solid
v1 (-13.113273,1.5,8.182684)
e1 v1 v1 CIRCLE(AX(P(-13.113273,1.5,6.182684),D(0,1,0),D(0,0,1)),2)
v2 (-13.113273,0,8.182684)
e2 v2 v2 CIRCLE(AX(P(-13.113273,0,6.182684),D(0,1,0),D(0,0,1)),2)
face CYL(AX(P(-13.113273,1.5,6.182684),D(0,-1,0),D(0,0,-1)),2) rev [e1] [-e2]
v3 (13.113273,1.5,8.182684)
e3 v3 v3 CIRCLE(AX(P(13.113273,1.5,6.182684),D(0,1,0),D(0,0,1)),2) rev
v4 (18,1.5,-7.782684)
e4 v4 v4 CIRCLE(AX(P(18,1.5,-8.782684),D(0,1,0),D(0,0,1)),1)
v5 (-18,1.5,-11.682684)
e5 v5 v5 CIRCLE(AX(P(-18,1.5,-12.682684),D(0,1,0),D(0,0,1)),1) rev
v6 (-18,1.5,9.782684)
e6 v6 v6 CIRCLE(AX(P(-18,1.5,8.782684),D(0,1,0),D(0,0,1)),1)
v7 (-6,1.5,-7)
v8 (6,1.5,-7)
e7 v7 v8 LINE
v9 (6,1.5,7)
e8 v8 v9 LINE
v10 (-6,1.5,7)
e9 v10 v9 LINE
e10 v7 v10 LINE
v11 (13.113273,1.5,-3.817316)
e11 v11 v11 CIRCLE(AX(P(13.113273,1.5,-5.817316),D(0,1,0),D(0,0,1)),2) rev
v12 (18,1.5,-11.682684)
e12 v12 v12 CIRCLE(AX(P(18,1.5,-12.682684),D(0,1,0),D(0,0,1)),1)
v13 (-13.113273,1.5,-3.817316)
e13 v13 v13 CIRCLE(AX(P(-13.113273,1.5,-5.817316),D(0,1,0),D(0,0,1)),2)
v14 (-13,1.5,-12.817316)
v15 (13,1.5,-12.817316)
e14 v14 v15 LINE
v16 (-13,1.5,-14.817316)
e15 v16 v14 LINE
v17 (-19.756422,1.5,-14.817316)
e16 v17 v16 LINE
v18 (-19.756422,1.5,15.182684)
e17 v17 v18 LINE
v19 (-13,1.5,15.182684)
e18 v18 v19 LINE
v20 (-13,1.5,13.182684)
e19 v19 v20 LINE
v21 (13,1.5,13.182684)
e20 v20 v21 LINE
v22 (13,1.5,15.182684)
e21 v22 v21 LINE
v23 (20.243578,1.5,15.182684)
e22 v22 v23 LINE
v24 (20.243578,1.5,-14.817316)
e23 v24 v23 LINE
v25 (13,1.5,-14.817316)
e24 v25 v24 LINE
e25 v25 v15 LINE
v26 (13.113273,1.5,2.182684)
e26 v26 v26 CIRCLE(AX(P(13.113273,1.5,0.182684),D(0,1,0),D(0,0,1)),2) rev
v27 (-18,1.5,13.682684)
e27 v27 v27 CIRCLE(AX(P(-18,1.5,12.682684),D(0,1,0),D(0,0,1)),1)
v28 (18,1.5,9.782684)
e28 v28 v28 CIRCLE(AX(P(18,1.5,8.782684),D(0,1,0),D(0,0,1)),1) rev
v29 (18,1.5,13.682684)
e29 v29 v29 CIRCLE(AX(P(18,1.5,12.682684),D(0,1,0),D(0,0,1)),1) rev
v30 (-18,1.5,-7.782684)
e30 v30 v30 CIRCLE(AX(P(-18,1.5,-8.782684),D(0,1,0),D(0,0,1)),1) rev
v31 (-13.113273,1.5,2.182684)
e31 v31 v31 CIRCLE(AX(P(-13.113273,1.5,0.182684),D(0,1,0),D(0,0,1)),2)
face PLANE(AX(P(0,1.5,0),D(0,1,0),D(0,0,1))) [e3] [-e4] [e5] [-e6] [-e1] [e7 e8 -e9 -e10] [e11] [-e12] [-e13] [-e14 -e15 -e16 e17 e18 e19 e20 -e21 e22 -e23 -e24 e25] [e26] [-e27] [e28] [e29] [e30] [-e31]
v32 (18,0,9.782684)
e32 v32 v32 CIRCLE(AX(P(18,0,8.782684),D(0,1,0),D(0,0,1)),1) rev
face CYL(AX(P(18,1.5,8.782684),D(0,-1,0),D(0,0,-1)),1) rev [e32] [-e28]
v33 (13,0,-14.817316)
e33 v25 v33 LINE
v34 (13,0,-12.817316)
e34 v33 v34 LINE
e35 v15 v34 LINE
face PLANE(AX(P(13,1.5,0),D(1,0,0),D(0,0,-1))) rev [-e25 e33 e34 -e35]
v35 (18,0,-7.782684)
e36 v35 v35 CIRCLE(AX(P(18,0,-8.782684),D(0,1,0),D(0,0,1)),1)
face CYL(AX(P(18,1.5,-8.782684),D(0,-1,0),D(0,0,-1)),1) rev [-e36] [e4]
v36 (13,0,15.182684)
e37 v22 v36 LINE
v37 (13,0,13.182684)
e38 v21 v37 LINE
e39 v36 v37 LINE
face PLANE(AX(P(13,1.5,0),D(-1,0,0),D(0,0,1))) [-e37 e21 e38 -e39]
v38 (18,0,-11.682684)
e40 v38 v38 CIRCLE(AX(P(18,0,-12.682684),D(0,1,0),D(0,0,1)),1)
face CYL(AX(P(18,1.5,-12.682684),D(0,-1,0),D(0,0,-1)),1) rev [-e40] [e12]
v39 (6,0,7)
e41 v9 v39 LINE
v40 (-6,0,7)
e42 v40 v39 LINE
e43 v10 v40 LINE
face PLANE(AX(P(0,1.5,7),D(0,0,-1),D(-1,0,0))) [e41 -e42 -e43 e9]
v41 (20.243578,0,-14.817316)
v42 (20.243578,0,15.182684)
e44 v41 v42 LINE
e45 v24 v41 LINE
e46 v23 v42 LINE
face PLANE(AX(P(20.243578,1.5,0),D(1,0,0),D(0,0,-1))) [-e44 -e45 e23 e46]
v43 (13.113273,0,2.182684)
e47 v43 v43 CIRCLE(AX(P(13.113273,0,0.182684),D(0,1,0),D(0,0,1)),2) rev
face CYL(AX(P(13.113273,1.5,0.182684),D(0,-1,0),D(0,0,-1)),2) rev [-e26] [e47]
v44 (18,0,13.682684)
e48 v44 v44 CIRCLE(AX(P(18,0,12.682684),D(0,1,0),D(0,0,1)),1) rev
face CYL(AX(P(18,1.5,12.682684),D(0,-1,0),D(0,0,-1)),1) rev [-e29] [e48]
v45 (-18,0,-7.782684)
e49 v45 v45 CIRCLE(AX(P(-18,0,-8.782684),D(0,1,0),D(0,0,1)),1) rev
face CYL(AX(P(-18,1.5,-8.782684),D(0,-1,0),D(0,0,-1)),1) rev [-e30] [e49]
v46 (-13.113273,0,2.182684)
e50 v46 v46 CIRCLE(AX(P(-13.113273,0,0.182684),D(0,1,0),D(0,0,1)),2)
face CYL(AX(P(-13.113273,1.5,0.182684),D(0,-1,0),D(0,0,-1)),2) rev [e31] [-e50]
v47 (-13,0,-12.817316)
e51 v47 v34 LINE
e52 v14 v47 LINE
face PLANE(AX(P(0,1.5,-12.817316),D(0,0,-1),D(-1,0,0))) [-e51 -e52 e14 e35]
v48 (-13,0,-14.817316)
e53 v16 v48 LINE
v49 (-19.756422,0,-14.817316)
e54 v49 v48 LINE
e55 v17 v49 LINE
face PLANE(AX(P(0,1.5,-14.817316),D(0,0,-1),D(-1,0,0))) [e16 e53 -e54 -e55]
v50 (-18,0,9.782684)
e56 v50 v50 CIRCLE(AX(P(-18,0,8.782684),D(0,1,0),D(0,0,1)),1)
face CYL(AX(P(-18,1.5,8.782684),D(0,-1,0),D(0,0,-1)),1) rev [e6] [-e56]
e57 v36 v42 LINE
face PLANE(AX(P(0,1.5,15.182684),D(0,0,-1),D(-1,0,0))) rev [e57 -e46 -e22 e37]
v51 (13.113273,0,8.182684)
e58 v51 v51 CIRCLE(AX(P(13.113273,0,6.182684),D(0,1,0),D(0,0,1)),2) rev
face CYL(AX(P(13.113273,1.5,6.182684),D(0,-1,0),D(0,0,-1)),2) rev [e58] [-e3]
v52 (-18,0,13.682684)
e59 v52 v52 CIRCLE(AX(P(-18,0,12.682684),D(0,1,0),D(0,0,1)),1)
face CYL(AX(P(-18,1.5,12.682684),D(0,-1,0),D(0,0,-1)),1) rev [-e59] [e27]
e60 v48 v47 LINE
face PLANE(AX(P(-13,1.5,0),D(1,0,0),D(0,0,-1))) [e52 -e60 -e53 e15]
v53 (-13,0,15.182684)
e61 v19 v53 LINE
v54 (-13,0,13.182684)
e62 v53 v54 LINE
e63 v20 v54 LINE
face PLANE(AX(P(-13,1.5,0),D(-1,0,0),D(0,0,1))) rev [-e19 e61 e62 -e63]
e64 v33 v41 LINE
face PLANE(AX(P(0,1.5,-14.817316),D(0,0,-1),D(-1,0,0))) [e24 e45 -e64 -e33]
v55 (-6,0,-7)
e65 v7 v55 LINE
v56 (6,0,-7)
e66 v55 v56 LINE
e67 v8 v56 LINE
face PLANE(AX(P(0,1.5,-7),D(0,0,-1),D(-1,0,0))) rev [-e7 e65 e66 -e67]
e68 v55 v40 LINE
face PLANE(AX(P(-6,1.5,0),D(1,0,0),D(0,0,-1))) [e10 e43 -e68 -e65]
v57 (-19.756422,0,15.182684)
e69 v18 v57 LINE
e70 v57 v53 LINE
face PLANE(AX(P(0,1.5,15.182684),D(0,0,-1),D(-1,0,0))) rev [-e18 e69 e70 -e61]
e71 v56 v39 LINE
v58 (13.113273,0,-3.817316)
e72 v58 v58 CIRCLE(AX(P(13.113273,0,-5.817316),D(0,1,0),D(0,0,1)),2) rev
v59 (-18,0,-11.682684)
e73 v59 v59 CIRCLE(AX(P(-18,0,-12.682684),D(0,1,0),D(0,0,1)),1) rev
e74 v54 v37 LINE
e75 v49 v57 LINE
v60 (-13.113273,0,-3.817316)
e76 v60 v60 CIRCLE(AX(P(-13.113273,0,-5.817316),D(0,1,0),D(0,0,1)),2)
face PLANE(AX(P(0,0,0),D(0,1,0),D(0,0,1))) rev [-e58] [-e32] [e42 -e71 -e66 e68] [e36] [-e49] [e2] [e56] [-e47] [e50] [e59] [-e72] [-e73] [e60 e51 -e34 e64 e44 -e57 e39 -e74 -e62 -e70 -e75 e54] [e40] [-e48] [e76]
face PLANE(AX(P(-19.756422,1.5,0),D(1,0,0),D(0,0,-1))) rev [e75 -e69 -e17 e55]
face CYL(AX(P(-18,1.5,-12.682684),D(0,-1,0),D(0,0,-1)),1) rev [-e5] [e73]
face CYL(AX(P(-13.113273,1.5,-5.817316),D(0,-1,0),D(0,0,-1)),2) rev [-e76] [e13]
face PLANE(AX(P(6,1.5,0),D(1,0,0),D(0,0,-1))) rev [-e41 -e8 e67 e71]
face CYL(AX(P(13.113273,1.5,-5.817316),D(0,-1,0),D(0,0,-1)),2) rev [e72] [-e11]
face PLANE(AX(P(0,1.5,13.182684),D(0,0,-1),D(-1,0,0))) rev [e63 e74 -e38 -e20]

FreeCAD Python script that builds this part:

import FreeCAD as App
import Part
import Sketcher

V = App.Vector
Q = App.Units.Quantity


def add_polygon(sketch, points):
    """Adds a closed chain of lines whose ends are joined by coincident constraints."""
    first, n = sketch.GeometryCount, len(points)
    for a, b in zip(points, points[1:] + points[:1]):
        sketch.addGeometry(Part.LineSegment(App.Vector(*a, 0), App.Vector(*b, 0)), False)
    for i in range(n):
        sketch.addConstraint(Sketcher.Constraint("Coincident", first + i, 2, first + (i + 1) % n, 1))

doc = App.newDocument("Part")
body = doc.addObject("PartDesign::Body", "Body")

# Sketch on XZ plane
sketch1 = body.newObject("Sketcher::SketchObject", "Sketch")
sketch1.AttachmentSupport = (doc.getObject("XZ_Plane"), [""])
sketch1.MapMode = "FlatFace"
add_polygon(sketch1, [(-13, -14.8), (-19.8, -14.8), (-19.8, 15.2), (-13, 15.2), (-13, 13.2), (13, 13.2), (13, 15.2), (20.2, 15.2), (20.2, -14.8), (13, -14.8), (13, -12.8), (-13, -12.8)])  # lines 0-11
sketch1.addGeometry(Part.Circle(V(-18, 12.7, 0), V(0, 0, 1), 1), False)  # 12
sketch1.addGeometry(Part.Circle(V(-18, 8.8, 0), V(0, 0, 1), 1), False)  # 13
sketch1.addGeometry(Part.Circle(V(-13.1, 6.2, 0), V(0, 0, 1), 2), False)  # 14
sketch1.addGeometry(Part.Circle(V(-13.1, 0.2, 0), V(0, 0, 1), 2), False)  # 15
sketch1.addGeometry(Part.Circle(V(18, 12.7, 0), V(0, 0, 1), 1), False)  # 16
sketch1.addGeometry(Part.Circle(V(18, 8.8, 0), V(0, 0, 1), 1), False)  # 17
sketch1.addGeometry(Part.Circle(V(13.1, 6.2, 0), V(0, 0, 1), 2), False)  # 18
sketch1.addGeometry(Part.Circle(V(13.1, 0.2, 0), V(0, 0, 1), 2), False)  # 19
sketch1.addGeometry(Part.Circle(V(-13.1, -5.8, 0), V(0, 0, 1), 2), False)  # 20
sketch1.addGeometry(Part.Circle(V(-18, -8.8, 0), V(0, 0, 1), 1), False)  # 21
sketch1.addGeometry(Part.Circle(V(-18, -12.7, 0), V(0, 0, 1), 1), False)  # 22
add_polygon(sketch1, [(6, 7), (-6, 7), (-6, -7), (6, -7)])  # lines 23-26
sketch1.addGeometry(Part.Circle(V(13.1, -5.8, 0), V(0, 0, 1), 2), False)  # 27
sketch1.addGeometry(Part.Circle(V(18, -8.8, 0), V(0, 0, 1), 1), False)  # 28
sketch1.addGeometry(Part.Circle(V(18, -12.7, 0), V(0, 0, 1), 1), False)  # 29
sketch1.addConstraint([
    Sketcher.Constraint("Horizontal", 0),
    Sketcher.Constraint("Vertical", 1),
    Sketcher.Constraint("Horizontal", 2),
    Sketcher.Constraint("Vertical", 3),
    Sketcher.Constraint("Horizontal", 4),
    Sketcher.Constraint("Vertical", 5),
    Sketcher.Constraint("Horizontal", 6),
    Sketcher.Constraint("Vertical", 7),
    Sketcher.Constraint("Horizontal", 8),
    Sketcher.Constraint("Vertical", 9),
    Sketcher.Constraint("Horizontal", 10),
    Sketcher.Constraint("Vertical", 11),
    Sketcher.Constraint("Horizontal", 23),
    Sketcher.Constraint("Vertical", 24),
    Sketcher.Constraint("Horizontal", 25),
    Sketcher.Constraint("Vertical", 26),
    Sketcher.Constraint("Equal", 12, 13),
    Sketcher.Constraint("Equal", 14, 15),
    Sketcher.Constraint("Equal", 13, 16),
    Sketcher.Constraint("Equal", 16, 17),
    Sketcher.Constraint("Equal", 15, 18),
    Sketcher.Constraint("Equal", 18, 19),
    Sketcher.Constraint("Equal", 19, 20),
    Sketcher.Constraint("Equal", 17, 21),
    Sketcher.Constraint("Equal", 21, 22),
    Sketcher.Constraint("Equal", 20, 27),
    Sketcher.Constraint("Equal", 22, 28),
    Sketcher.Constraint("Equal", 28, 29),
    Sketcher.Constraint("Symmetric", 17, 3, 21, 3, -1, 1),
    Sketcher.Constraint("Symmetric", 16, 3, 22, 3, -1, 1),
    Sketcher.Constraint("Symmetric", 13, 3, 28, 3, -1, 1),
    Sketcher.Constraint("Symmetric", 12, 3, 29, 3, -1, 1),
    Sketcher.Constraint("Symmetric", 23, 2, 25, 2, -1, 1),
    Sketcher.Constraint("Symmetric", 12, 3, 16, 3, -2),
    Sketcher.Constraint("Symmetric", 13, 3, 17, 3, -2),
    Sketcher.Constraint("Symmetric", 14, 3, 18, 3, -2),
    Sketcher.Constraint("Symmetric", 15, 3, 19, 3, -2),
    Sketcher.Constraint("Symmetric", 20, 3, 27, 3, -2),
    Sketcher.Constraint("Symmetric", 2, 2, 5, 2, -2),
    Sketcher.Constraint("Symmetric", 8, 2, 11, 2, -2),
    Sketcher.Constraint("Vertical", 12, 3, 13, 3),
    Sketcher.Constraint("Vertical", 14, 3, 15, 3),
    Sketcher.Constraint("Vertical", 15, 3, 20, 3),
    Sketcher.Constraint("Vertical", 5, 2, 8, 2),
    Sketcher.Constraint("Equal", 5, 9),
    Sketcher.Constraint("Diameter", 12, Q("2 mm")),
    Sketcher.Constraint("Diameter", 14, Q("4 mm")),
    Sketcher.Constraint("DistanceX", 4, 1, 4, 2, Q("26 mm")),
    Sketcher.Constraint("DistanceX", 23, 2, 23, 1, Q("12 mm")),
    Sketcher.Constraint("DistanceY", 1, 1, 1, 2, Q("30 mm")),
    Sketcher.Constraint("DistanceY", 3, 2, 3, 1, Q("2 mm")),
    Sketcher.Constraint("DistanceY", 24, 2, 24, 1, Q("14 mm")),
    Sketcher.Constraint("DistanceX", 12, 3, -1, 1, Q("18 mm")),
    Sketcher.Constraint("DistanceY", 15, 3, 14, 3, Q("6 mm")),
    Sketcher.Constraint("DistanceY", 20, 3, 15, 3, Q("6 mm")),
    Sketcher.Constraint("DistanceY", 0, 2, 20, 3, Q("9 mm")),
    Sketcher.Constraint("DistanceY", 13, 3, 12, 3, Q("3.9 mm")),
    Sketcher.Constraint("DistanceY", 14, 3, 13, 3, Q("2.6 mm")),
    Sketcher.Constraint("DistanceX", 0, 2, 0, 1, Q("6.756422 mm")),
    Sketcher.Constraint("DistanceX", 6, 1, 6, 2, Q("7.243578 mm")),
    Sketcher.Constraint("DistanceX", 0, 2, 20, 3, Q("6.643148 mm")),
    Sketcher.Constraint("DistanceY", -1, 1, 12, 3, Q("12.682684 mm")),
])
pad1 = body.newObject("PartDesign::Pad", "Pad")
pad1.Profile = sketch1
pad1.Length = 1.5
pad1.Reversed = True

doc.recompute()
